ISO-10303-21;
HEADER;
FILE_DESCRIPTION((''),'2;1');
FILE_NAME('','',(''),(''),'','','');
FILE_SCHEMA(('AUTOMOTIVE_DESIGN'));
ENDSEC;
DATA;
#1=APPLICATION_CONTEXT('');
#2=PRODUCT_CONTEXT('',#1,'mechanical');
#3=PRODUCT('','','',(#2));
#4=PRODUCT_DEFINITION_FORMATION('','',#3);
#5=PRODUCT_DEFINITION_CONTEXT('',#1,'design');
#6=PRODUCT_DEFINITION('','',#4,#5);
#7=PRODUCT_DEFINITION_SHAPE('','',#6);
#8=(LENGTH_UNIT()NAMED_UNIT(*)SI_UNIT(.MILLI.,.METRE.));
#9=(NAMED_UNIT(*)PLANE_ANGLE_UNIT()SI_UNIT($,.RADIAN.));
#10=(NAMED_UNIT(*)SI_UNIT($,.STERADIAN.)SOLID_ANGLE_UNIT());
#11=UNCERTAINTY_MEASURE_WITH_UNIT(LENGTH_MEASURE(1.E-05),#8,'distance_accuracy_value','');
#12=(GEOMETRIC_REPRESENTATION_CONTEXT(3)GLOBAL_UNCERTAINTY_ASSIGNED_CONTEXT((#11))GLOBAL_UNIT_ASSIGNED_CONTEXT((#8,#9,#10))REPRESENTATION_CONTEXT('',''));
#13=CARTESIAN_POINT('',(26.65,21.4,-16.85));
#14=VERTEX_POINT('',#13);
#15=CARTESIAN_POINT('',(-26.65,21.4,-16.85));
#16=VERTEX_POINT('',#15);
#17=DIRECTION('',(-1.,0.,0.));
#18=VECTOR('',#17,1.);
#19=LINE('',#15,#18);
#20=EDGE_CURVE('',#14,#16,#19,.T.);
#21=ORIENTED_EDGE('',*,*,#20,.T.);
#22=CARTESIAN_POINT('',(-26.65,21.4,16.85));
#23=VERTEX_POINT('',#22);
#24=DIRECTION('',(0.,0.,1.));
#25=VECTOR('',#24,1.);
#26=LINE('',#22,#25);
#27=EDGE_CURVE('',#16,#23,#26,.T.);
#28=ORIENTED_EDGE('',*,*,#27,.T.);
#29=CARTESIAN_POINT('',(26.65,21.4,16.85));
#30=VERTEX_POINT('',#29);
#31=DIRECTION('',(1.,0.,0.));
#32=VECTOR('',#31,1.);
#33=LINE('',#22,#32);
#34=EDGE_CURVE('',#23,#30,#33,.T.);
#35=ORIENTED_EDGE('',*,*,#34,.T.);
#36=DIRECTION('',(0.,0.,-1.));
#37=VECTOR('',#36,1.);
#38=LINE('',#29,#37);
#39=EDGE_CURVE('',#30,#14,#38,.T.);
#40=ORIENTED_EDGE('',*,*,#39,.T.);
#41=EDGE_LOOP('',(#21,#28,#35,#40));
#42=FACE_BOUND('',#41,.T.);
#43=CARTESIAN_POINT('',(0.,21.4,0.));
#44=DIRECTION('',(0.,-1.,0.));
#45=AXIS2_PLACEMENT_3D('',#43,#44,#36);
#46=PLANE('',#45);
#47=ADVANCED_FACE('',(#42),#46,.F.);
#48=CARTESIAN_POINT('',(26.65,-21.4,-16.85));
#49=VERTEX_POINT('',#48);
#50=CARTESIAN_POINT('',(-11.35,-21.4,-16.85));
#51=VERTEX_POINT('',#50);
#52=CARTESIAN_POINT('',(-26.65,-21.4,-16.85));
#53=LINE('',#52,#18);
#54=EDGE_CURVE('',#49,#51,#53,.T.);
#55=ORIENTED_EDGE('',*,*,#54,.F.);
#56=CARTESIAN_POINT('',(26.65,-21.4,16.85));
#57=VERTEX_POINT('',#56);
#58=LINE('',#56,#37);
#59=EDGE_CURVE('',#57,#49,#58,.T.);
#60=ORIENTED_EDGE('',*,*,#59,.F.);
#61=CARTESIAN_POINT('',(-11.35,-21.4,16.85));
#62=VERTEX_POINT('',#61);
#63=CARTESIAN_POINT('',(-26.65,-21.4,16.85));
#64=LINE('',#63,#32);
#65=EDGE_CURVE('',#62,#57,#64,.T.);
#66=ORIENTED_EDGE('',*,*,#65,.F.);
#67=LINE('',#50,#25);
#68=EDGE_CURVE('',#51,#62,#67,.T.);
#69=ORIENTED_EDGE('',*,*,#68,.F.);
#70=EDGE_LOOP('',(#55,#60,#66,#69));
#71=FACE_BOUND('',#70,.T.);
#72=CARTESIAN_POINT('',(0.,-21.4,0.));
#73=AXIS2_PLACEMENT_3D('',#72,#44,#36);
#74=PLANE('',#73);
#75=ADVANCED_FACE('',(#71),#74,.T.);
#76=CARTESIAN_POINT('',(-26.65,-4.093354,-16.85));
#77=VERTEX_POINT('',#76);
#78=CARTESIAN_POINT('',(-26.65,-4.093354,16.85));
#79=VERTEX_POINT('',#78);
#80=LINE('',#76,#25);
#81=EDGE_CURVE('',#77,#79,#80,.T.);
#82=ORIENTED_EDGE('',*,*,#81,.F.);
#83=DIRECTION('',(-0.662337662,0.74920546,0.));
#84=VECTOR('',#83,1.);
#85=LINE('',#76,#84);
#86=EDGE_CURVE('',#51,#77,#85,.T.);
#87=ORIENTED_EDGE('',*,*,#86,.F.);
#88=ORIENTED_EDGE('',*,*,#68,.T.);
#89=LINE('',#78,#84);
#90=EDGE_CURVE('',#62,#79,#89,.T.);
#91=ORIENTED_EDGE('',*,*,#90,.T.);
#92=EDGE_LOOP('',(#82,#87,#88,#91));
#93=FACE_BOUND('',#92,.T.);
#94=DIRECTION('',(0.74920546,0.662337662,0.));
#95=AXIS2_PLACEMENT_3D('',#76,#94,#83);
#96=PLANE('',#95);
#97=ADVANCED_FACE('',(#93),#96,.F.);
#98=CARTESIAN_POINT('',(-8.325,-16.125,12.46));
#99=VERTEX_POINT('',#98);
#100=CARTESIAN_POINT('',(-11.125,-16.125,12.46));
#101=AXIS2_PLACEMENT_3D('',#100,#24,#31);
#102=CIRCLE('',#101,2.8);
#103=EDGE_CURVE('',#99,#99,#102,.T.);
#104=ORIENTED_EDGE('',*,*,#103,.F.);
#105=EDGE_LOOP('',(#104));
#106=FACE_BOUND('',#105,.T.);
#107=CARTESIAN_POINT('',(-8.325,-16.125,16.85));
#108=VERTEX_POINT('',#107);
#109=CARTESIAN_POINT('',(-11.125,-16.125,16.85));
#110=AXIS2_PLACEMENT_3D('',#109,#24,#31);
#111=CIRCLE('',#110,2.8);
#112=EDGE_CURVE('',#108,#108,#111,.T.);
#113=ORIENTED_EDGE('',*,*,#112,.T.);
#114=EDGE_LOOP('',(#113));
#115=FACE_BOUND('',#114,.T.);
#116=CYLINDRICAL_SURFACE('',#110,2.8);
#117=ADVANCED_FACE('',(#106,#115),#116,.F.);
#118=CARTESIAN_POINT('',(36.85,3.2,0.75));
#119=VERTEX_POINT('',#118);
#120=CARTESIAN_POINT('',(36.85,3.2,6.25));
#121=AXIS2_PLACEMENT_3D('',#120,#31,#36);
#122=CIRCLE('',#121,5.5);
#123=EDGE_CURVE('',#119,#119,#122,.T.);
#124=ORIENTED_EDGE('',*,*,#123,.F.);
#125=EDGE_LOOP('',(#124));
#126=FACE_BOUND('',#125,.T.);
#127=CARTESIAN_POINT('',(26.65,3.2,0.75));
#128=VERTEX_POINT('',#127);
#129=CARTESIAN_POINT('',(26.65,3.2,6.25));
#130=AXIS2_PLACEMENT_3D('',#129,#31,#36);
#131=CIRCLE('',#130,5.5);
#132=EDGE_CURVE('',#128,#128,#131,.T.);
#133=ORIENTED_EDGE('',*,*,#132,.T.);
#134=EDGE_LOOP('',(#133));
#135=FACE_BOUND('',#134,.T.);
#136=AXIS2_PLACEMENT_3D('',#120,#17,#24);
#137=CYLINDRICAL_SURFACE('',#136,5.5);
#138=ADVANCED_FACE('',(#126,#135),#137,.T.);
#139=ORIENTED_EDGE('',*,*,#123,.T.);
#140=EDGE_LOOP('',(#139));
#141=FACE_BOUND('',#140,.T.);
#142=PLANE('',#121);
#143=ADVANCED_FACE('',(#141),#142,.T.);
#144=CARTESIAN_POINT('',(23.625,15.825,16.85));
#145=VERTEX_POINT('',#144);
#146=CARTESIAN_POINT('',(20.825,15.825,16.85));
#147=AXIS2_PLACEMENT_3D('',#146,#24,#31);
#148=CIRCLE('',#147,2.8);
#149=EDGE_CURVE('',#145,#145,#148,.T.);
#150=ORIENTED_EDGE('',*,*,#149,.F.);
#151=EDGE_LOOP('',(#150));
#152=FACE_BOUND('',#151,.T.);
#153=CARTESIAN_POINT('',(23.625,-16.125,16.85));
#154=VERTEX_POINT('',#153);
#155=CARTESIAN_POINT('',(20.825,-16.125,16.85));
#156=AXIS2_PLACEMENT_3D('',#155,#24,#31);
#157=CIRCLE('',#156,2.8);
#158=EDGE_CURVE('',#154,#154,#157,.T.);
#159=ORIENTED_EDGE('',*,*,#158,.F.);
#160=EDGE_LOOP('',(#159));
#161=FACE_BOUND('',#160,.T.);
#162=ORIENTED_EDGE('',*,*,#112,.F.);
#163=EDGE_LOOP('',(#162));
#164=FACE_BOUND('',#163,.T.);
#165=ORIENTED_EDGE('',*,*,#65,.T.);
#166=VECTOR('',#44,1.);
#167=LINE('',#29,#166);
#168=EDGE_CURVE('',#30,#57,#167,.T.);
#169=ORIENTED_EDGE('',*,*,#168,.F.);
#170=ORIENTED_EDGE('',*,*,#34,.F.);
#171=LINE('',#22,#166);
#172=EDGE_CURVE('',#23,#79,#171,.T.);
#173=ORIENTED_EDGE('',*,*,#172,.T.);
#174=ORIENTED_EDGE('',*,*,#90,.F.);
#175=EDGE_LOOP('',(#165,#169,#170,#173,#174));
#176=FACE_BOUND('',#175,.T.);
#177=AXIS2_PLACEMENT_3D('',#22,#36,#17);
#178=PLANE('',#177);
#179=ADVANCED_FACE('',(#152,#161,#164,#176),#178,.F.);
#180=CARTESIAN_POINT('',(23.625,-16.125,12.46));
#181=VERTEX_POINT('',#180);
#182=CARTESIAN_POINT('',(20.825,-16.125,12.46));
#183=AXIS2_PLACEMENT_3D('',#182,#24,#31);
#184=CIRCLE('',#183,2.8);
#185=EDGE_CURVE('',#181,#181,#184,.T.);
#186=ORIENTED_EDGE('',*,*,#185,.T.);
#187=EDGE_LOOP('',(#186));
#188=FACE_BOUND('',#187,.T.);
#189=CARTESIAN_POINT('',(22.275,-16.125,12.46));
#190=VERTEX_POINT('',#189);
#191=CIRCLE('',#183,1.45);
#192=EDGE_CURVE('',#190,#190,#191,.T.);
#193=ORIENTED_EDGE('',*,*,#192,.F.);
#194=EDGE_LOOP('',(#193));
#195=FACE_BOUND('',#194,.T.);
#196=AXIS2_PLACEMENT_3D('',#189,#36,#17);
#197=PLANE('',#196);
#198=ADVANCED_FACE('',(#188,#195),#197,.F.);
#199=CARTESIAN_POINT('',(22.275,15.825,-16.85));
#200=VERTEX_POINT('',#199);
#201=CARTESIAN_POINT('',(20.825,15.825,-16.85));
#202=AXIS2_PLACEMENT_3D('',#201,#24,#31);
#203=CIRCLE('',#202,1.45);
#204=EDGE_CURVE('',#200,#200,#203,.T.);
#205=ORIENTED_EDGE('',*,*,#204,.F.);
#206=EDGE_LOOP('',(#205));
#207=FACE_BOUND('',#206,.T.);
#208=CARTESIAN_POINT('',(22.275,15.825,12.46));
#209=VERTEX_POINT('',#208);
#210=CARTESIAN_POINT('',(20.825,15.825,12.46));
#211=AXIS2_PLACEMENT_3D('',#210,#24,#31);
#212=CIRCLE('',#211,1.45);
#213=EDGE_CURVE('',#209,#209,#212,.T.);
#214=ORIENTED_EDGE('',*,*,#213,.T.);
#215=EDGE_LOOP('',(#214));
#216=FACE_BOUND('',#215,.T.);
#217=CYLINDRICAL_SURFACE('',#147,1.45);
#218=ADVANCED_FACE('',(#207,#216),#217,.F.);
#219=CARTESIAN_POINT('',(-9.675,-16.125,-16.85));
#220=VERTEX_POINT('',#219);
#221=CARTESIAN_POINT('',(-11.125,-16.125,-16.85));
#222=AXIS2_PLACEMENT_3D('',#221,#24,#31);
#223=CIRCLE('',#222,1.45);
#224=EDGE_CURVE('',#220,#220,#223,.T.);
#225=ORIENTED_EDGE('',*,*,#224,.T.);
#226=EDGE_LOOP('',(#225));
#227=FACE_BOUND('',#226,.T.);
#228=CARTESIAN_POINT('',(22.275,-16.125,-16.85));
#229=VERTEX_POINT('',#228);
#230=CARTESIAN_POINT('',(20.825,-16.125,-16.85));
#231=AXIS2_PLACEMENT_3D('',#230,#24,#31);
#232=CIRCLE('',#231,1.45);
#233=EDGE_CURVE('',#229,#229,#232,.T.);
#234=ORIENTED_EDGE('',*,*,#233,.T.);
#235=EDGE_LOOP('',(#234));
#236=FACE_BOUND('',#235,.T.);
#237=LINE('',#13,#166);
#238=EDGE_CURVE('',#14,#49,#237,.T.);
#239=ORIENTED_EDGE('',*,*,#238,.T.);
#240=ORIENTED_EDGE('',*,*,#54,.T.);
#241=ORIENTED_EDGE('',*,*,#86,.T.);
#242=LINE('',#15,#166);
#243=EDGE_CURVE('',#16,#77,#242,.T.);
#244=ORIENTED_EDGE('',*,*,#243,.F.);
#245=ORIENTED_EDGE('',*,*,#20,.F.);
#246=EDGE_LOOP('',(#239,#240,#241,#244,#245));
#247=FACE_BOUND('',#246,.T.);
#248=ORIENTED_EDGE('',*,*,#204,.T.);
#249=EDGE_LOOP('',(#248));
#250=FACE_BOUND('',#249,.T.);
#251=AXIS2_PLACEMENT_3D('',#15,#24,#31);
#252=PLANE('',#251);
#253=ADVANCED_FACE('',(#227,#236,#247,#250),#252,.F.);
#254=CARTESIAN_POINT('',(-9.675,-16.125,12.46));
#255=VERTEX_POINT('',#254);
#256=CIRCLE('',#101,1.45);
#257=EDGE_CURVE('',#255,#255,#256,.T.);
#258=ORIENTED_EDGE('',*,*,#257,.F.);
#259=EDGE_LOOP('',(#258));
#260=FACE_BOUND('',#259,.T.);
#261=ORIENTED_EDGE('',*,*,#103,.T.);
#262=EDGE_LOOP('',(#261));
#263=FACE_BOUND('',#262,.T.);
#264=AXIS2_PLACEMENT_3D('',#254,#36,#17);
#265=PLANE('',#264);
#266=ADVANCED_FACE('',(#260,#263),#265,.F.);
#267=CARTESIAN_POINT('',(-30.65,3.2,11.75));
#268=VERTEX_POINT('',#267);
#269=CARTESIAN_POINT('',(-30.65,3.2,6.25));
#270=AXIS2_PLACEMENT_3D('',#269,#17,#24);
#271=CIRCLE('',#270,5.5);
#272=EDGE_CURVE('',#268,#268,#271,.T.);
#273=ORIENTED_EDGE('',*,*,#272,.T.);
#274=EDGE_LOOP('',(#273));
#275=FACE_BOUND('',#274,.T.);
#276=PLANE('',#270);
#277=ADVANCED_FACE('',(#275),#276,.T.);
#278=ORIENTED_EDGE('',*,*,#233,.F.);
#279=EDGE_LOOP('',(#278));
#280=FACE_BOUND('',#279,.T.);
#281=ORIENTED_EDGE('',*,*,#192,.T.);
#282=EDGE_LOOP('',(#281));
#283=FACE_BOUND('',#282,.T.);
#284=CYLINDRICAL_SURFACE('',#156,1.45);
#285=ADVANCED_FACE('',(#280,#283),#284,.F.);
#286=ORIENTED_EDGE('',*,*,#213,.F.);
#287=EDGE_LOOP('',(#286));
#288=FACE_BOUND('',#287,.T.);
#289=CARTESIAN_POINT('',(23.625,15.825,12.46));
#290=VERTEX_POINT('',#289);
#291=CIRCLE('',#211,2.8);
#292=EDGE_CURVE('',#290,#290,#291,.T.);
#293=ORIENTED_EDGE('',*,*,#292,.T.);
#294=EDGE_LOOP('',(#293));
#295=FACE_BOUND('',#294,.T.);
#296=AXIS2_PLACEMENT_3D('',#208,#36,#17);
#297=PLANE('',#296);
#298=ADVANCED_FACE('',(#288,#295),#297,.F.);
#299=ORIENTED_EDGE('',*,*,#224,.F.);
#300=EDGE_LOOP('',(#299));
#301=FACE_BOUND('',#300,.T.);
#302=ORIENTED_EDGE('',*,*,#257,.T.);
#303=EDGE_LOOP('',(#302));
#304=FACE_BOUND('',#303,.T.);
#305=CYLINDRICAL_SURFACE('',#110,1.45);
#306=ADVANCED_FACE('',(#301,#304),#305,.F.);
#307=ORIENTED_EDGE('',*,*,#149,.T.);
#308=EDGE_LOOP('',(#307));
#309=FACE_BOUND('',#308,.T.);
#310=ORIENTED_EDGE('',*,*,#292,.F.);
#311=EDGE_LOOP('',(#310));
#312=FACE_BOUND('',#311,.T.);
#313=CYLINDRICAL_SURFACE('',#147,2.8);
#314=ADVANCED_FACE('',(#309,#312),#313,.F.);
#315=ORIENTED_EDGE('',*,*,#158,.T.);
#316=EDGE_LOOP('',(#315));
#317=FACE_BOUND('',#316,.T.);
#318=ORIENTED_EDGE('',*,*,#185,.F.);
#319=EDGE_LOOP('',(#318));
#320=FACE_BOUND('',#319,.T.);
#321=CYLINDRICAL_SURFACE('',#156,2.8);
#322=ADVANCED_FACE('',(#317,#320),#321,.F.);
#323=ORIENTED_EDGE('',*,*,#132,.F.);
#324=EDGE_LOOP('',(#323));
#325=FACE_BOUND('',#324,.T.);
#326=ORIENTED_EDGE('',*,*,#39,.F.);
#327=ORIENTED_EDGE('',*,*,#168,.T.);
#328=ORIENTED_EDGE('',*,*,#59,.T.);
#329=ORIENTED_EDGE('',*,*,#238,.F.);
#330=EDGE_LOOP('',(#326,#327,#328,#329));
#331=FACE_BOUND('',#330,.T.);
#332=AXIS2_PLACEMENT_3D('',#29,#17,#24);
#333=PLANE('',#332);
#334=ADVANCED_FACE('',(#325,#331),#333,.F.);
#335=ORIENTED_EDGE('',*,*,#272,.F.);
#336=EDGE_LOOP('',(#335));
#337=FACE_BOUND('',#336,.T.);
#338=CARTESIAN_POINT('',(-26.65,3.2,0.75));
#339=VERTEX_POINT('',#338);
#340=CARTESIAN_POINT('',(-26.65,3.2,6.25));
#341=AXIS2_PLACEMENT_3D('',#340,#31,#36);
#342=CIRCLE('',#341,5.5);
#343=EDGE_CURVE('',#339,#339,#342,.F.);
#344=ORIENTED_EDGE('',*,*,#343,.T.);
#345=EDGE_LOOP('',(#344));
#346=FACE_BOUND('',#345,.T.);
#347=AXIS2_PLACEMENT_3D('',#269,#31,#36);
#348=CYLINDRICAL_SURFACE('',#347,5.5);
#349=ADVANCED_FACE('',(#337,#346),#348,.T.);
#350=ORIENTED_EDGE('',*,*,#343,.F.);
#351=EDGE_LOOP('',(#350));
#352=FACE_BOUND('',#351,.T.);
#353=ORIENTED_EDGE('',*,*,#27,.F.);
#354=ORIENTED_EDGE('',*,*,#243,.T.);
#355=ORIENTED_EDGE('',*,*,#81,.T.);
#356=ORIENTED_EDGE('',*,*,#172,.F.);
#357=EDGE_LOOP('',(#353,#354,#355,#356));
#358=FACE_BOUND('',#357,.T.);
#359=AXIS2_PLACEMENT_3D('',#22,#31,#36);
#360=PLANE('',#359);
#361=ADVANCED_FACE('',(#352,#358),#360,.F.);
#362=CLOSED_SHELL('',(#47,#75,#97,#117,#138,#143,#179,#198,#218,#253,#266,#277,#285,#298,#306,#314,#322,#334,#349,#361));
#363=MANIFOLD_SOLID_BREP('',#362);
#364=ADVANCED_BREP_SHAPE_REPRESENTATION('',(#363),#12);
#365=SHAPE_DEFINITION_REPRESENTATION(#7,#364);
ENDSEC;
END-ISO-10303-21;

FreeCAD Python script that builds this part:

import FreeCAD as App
import Part
import Sketcher

doc = App.newDocument("Part")
params = doc.addObject("Spreadsheet::Sheet", "Params")
for row, (alias, value) in enumerate([
    ("sketch1_width", "53.3 mm"),
    ("sketch1_height", "33.7 mm"),
    ("pad1_length", "42.8 mm"),
    ("sketch2_width", "15.3 mm"),
    ("sketch2_length", "23.1 mm"),
    ("sketch3_diameter", "11 mm"),
    ("pad2_length", "10.2 mm"),
    ("sketch4_diameter", "11 mm"),
    ("pad3_length", "4 mm"),
    ("sketch5_diameter", "2.9 mm"),
    ("hole_diameter", "2.9 mm"),
    ("hole_cbore_diameter", "5.6 mm"),
    ("hole_cbore_depth", "4.39 mm"),
], start=1):
    params.set(f"A{row}", alias)
    params.set(f"B{row}", "=" + value)
    params.setAlias(f"B{row}", alias)

body = doc.addObject("PartDesign::Body", "Body")

# Sketch on XZ plane
sketch1 = body.newObject("Sketcher::SketchObject", "Sketch")
sketch1.AttachmentSupport = (doc.getObject("XZ_Plane"), [""])
sketch1.MapMode = "FlatFace"
sketch1.addGeometry(Part.LineSegment(App.Vector(-27, -17, 0), App.Vector(-27, 17, 0)), False)
sketch1.addGeometry(Part.LineSegment(App.Vector(-27, 17, 0), App.Vector(27, 17, 0)), False)
sketch1.addGeometry(Part.LineSegment(App.Vector(27, 17, 0), App.Vector(27, -17, 0)), False)
sketch1.addGeometry(Part.LineSegment(App.Vector(27, -17, 0), App.Vector(-27, -17, 0)), False)
sketch1.addConstraint(Sketcher.Constraint("Coincident", 0, 2, 1, 1))
sketch1.addConstraint(Sketcher.Constraint("Coincident", 1, 2, 2, 1))
sketch1.addConstraint(Sketcher.Constraint("Coincident", 2, 2, 3, 1))
sketch1.addConstraint(Sketcher.Constraint("Coincident", 3, 2, 0, 1))
sketch1.addConstraint(Sketcher.Constraint("Vertical", 0))
sketch1.addConstraint(Sketcher.Constraint("Horizontal", 1))
sketch1.addConstraint(Sketcher.Constraint("Vertical", 2))
sketch1.addConstraint(Sketcher.Constraint("Horizontal", 3))
sketch1.addConstraint(Sketcher.Constraint("Symmetric", 0, 2, 2, 2, -1, 1))
sketch1.addConstraint(Sketcher.Constraint("DistanceX", 1, 1, 1, 2, 53.3))
sketch1.addConstraint(Sketcher.Constraint("DistanceY", 0, 1, 0, 2, 33.7))
sketch1.setExpression("Constraints[9]", "Params.sketch1_width")
sketch1.setExpression("Constraints[10]", "Params.sketch1_height")
pad1 = body.newObject("PartDesign::Pad", "Pad")
pad1.Profile = sketch1
pad1.setExpression("Length", "Params.pad1_length")
pad1.Midplane = True

# Sketch on XY plane
sketch2 = body.newObject("Sketcher::SketchObject", "Sketch001")
sketch2.AttachmentSupport = (doc.getObject("XY_Plane"), [""])
sketch2.MapMode = "FlatFace"
sketch2.AttachmentOffset = App.Placement(App.Vector(0, 0, 16.85), App.Rotation())
sketch2.addGeometry(Part.LineSegment(App.Vector(-27, -21, 0), App.Vector(-11, -21, 0)), False)
sketch2.addGeometry(Part.LineSegment(App.Vector(-11, -21, 0), App.Vector(-27, -4, 0)), False)
sketch2.addGeometry(Part.LineSegment(App.Vector(-27, -4, 0), App.Vector(-27, -21, 0)), False)
sketch2.addConstraint(Sketcher.Constraint("Coincident", 0, 2, 1, 1))
sketch2.addConstraint(Sketcher.Constraint("Coincident", 1, 2, 2, 1))
sketch2.addConstraint(Sketcher.Constraint("Coincident", 2, 2, 0, 1))
sketch2.addConstraint(Sketcher.Constraint("Horizontal", 0))
sketch2.addConstraint(Sketcher.Constraint("Vertical", 2))
sketch2.addConstraint(Sketcher.Constraint("DistanceX", 0, 1, 0, 2, 15.3))
sketch2.addConstraint(Sketcher.Constraint("Distance", 1, 23.1))
sketch2.addConstraint(Sketcher.Constraint("DistanceY", 0, 2, -1, 1, 21.4))
sketch2.addConstraint(Sketcher.Constraint("DistanceX", 0, 2, -1, 1, 11.35))
sketch2.setExpression("Constraints[5]", "Params.sketch2_width")
sketch2.setExpression("Constraints[6]", "Params.sketch2_length")
pocket1 = body.newObject("PartDesign::Pocket", "Pocket")
pocket1.Profile = sketch2
pocket1.Type = "ThroughAll"

# Sketch on YZ plane
sketch3 = body.newObject("Sketcher::SketchObject", "Sketch002")
sketch3.AttachmentSupport = (doc.getObject("YZ_Plane"), [""])
sketch3.MapMode = "FlatFace"
sketch3.AttachmentOffset = App.Placement(App.Vector(0, 0, 26.65), App.Rotation())
sketch3.addGeometry(Part.Circle(App.Vector(3, 6, 0), App.Vector(0, 0, 1), 6), False)
sketch3.addConstraint(Sketcher.Constraint("Diameter", 0, 11.0))
sketch3.addConstraint(Sketcher.Constraint("DistanceX", -1, 1, 0, 3, 3.2))
sketch3.addConstraint(Sketcher.Constraint("DistanceY", -1, 1, 0, 3, 6.25))
sketch3.setExpression("Constraints[0]", "Params.sketch3_diameter")
pad2 = body.newObject("PartDesign::Pad", "Pad001")
pad2.Profile = sketch3
pad2.setExpression("Length", "Params.pad2_length")

# Sketch on YZ plane
sketch4 = body.newObject("Sketcher::SketchObject", "Sketch003")
sketch4.AttachmentSupport = (doc.getObject("YZ_Plane"), [""])
sketch4.MapMode = "FlatFace"
sketch4.AttachmentOffset = App.Placement(App.Vector(0, 0, -26.65), App.Rotation())
sketch4.addGeometry(Part.Circle(App.Vector(3, 6, 0), App.Vector(0, 0, 1), 6), False)
sketch4.addConstraint(Sketcher.Constraint("Diameter", 0, 11.0))
sketch4.addConstraint(Sketcher.Constraint("DistanceX", -1, 1, 0, 3, 3.2))
sketch4.addConstraint(Sketcher.Constraint("DistanceY", -1, 1, 0, 3, 6.25))
sketch4.setExpression("Constraints[0]", "Params.sketch4_diameter")
pad3 = body.newObject("PartDesign::Pad", "Pad002")
pad3.Profile = sketch4
pad3.setExpression("Length", "Params.pad3_length")
pad3.Reversed = True

# Sketch on XY plane
sketch5 = body.newObject("Sketcher::SketchObject", "Sketch004")
sketch5.AttachmentSupport = (doc.getObject("XY_Plane"), [""])
sketch5.MapMode = "FlatFace"
sketch5.AttachmentOffset = App.Placement(App.Vector(0, 0, 16.85), App.Rotation())
sketch5.addGeometry(Part.Circle(App.Vector(20.8, 15.8, 0), App.Vector(0, 0, 1), 1.4), False)
sketch5.addGeometry(Part.Circle(App.Vector(20.8, -16.1, 0), App.Vector(0, 0, 1), 1.4), False)
sketch5.addGeometry(Part.Circle(App.Vector(-11.1, -16.1, 0), App.Vector(0, 0, 1), 1.4), False)
sketch5.addConstraint(Sketcher.Constraint("Equal", 0, 1))
sketch5.addConstraint(Sketcher.Constraint("Equal", 1, 2))
sketch5.addConstraint(Sketcher.Constraint("Horizontal", 1, 3, 2, 3))
sketch5.addConstraint(Sketcher.Constraint("Vertical", 0, 3, 1, 3))
sketch5.addConstraint(Sketcher.Constraint("Diameter", 0, 2.9))
sketch5.addConstraint(Sketcher.Constraint("DistanceY", 1, 3, 0, 3, 31.95))
sketch5.addConstraint(Sketcher.Constraint("DistanceX", 2, 3, 1, 3, 31.95))
sketch5.addConstraint(Sketcher.Constraint("DistanceX", -1, 1, 0, 3, 20.825))
sketch5.addConstraint(Sketcher.Constraint("DistanceY", -1, 1, 0, 3, 15.825))
sketch5.setExpression("Constraints[4]", "Params.sketch5_diameter")
doc.recompute()
hole = body.newObject("PartDesign::Hole", "Hole")
hole.Profile = sketch5
hole.ThreadType = "None"
hole.setExpression("Diameter", "Params.hole_diameter")
hole.DepthType = "ThroughAll"
hole.HoleCutType = "Counterbore"
hole.setExpression("HoleCutDiameter", "Params.hole_cbore_diameter")
hole.setExpression("HoleCutDepth", "Params.hole_cbore_depth")

doc.recompute()
